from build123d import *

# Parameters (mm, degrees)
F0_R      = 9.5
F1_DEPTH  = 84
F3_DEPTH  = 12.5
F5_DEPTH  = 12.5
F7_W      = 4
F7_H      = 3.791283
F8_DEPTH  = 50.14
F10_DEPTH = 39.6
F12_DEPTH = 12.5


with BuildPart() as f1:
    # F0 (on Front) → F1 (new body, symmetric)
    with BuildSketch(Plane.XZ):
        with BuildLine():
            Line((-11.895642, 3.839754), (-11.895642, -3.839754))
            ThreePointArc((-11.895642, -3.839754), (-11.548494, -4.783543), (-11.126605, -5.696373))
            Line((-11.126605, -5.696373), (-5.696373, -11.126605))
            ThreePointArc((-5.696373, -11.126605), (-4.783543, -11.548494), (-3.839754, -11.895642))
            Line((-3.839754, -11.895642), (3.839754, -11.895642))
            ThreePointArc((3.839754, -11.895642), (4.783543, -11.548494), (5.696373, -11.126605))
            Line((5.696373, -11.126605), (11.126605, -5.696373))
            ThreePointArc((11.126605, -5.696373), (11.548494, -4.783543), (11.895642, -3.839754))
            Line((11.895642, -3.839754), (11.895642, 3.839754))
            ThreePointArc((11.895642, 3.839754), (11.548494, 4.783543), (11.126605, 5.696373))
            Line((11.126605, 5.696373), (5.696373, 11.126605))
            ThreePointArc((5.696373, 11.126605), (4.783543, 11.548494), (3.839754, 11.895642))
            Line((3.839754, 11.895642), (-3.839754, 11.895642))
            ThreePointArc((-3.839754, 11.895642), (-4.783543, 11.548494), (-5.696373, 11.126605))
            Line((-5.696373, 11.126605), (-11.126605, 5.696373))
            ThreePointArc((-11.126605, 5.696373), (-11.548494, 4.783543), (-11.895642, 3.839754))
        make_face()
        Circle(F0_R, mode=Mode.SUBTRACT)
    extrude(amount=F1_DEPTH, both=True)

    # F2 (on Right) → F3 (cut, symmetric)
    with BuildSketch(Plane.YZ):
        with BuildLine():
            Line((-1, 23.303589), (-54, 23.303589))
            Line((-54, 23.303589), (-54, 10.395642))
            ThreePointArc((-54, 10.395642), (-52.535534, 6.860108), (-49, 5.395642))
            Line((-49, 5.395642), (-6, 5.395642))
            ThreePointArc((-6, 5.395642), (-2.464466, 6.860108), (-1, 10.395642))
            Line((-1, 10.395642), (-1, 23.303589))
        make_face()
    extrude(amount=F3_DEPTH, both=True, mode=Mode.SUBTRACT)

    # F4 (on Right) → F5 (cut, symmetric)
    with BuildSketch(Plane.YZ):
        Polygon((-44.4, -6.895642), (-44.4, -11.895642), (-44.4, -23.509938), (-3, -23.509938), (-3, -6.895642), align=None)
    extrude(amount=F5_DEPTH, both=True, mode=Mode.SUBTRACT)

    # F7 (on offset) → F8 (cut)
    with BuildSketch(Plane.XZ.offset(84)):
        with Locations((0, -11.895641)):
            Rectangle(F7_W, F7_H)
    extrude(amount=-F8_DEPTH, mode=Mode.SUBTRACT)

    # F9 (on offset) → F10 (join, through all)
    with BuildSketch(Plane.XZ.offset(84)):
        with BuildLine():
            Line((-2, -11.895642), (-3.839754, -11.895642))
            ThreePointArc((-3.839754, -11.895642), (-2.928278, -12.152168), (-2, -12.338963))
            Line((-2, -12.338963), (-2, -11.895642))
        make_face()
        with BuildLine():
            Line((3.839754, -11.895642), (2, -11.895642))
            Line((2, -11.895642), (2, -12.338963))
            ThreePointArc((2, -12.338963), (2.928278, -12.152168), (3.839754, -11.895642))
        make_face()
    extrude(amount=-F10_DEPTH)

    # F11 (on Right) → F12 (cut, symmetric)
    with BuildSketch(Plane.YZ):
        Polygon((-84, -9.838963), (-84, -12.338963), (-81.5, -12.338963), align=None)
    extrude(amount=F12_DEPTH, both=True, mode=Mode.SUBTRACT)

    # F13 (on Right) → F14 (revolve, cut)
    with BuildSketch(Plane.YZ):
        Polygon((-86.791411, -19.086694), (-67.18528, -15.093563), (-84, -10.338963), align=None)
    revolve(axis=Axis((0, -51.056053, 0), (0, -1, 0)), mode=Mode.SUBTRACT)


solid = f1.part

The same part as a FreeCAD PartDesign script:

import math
import FreeCAD as App
import Part
import Sketcher

doc = App.newDocument("Part")
params = doc.addObject("Spreadsheet::Sheet", "Params")
for row, (alias, value) in enumerate([
    ("sketch1_diameter", "19 mm"),
    ("pad1_length", "168 mm"),
    ("sketch2_radius", "5 mm"),
    ("sketch2_width", "53 mm"),
    ("pocket1_length", "25 mm"),
    ("sketch3_width", "41.4 mm"),
    ("pocket2_length", "25 mm"),
    ("sketch4_width", "4 mm"),
    ("pocket3_length", "50.14 mm"),
    ("pad2_length", "39.6 mm"),
    ("sketch6_width", "2.5 mm"),
    ("pocket4_length", "25 mm"),
    ("groove_angle", "360 deg"),
], start=1):
    params.set(f"A{row}", alias)
    params.set(f"B{row}", "=" + value)
    params.setAlias(f"B{row}", alias)

body = doc.addObject("PartDesign::Body", "Body")

# Sketch on XZ plane
sketch1 = body.newObject("Sketcher::SketchObject", "Sketch")
sketch1.AttachmentSupport = (doc.getObject("XZ_Plane"), [""])
sketch1.MapMode = "FlatFace"
sketch1.addGeometry([
    Part.LineSegment(App.Vector(-11.895642, 3.839754, 0), App.Vector(-11.895642, -3.839754, 0)),  # 0
    Part.ArcOfCircle(Part.Circle(App.Vector(0.000108, 0.000046, 0), App.Vector(0, 0, 1), 12.500117), math.radians(-162.110566), math.radians(-152.889422)),  # 1
    Part.LineSegment(App.Vector(-11.126605, -5.696373, 0), App.Vector(-5.696373, -11.126605, 0)),  # 2
    Part.ArcOfCircle(Part.Circle(App.Vector(0.000046, 0.000108, 0), App.Vector(0, 0, 1), 12.500117), math.radians(-117.110578), math.radians(-107.889434)),  # 3
    Part.LineSegment(App.Vector(-3.839754, -11.895642, 0), App.Vector(3.839754, -11.895642, 0)),  # 4
    Part.ArcOfCircle(Part.Circle(App.Vector(-0.000046, 0.000108, 0), App.Vector(0, 0, 1), 12.500117), math.radians(-72.110566), math.radians(-62.889422)),  # 5
    Part.LineSegment(App.Vector(5.696373, -11.126605, 0), App.Vector(11.126605, -5.696373, 0)),  # 6
    Part.ArcOfCircle(Part.Circle(App.Vector(-0.000108, 0.000046, 0), App.Vector(0, 0, 1), 12.500117), math.radians(-27.110578), math.radians(-17.889434)),  # 7
    Part.LineSegment(App.Vector(11.895642, -3.839754, 0), App.Vector(11.895642, 3.839754, 0)),  # 8
    Part.ArcOfCircle(Part.Circle(App.Vector(-0.000108, -0.000046, 0), App.Vector(0, 0, 1), 12.500117), math.radians(17.889434), math.radians(27.110578)),  # 9
    Part.LineSegment(App.Vector(11.126605, 5.696373, 0), App.Vector(5.696373, 11.126605, 0)),  # 10
    Part.ArcOfCircle(Part.Circle(App.Vector(-0.000046, -0.000108, 0), App.Vector(0, 0, 1), 12.500117), math.radians(62.889422), math.radians(72.110566)),  # 11
    Part.LineSegment(App.Vector(3.839754, 11.895642, 0), App.Vector(-3.839754, 11.895642, 0)),  # 12
    Part.ArcOfCircle(Part.Circle(App.Vector(0.000046, -0.000108, 0), App.Vector(0, 0, 1), 12.500117), math.radians(107.889434), math.radians(117.110578)),  # 13
    Part.LineSegment(App.Vector(-5.696373, 11.126605, 0), App.Vector(-11.126605, 5.696373, 0)),  # 14
    Part.ArcOfCircle(Part.Circle(App.Vector(0.000108, -0.000046, 0), App.Vector(0, 0, 1), 12.500117), math.radians(152.889422), math.radians(162.110566)),  # 15
    Part.Circle(App.Vector(0, 0, 0), App.Vector(0, 0, 1), 9.5),  # 16
], False)
sketch1.addConstraint([
    Sketcher.Constraint("Coincident", 0, 2, 1, 1),
    Sketcher.Constraint("Coincident", 1, 2, 2, 1),
    Sketcher.Constraint("Coincident", 2, 2, 3, 1),
    Sketcher.Constraint("Coincident", 3, 2, 4, 1),
    Sketcher.Constraint("Coincident", 4, 2, 5, 1),
    Sketcher.Constraint("Coincident", 5, 2, 6, 1),
    Sketcher.Constraint("Coincident", 6, 2, 7, 1),
    Sketcher.Constraint("Coincident", 7, 2, 8, 1),
    Sketcher.Constraint("Coincident", 8, 2, 9, 1),
    Sketcher.Constraint("Coincident", 9, 2, 10, 1),
    Sketcher.Constraint("Coincident", 10, 2, 11, 1),
    Sketcher.Constraint("Coincident", 11, 2, 12, 1),
    Sketcher.Constraint("Coincident", 12, 2, 13, 1),
    Sketcher.Constraint("Coincident", 13, 2, 14, 1),
    Sketcher.Constraint("Coincident", 14, 2, 15, 1),
    Sketcher.Constraint("Coincident", 15, 2, 0, 1),
    Sketcher.Constraint("Vertical", 0),
    Sketcher.Constraint("Horizontal", 4),
    Sketcher.Constraint("Vertical", 8),
    Sketcher.Constraint("Horizontal", 12),
    Sketcher.Constraint("Coincident", 16, 3, -1, 1),
    Sketcher.Constraint("Equal", 1, 3),
    Sketcher.Constraint("Equal", 3, 5),
    Sketcher.Constraint("Equal", 5, 7),
    Sketcher.Constraint("Equal", 7, 9),
    Sketcher.Constraint("Equal", 9, 11),
    Sketcher.Constraint("Equal", 11, 13),
    Sketcher.Constraint("Equal", 13, 15),
    Sketcher.Constraint("Symmetric", 1, 3, 9, 3, -1, 1),
    Sketcher.Constraint("Symmetric", 3, 3, 11, 3, -1, 1),
    Sketcher.Constraint("Symmetric", 5, 3, 13, 3, -1, 1),
    Sketcher.Constraint("Symmetric", 7, 3, 15, 3, -1, 1),
    Sketcher.Constraint("Symmetric", 3, 3, 5, 3, -2),
    Sketcher.Constraint("Symmetric", 1, 3, 7, 3, -2),
    Sketcher.Constraint("Perpendicular", 2, 6),
    Sketcher.Constraint("Perpendicular", 6, 10),
    Sketcher.Constraint("Perpendicular", 10, 14),
    Sketcher.Constraint("Horizontal", 2, 2, 5, 2),
    Sketcher.Constraint("Horizontal", 1, 2, 6, 2),
    Sketcher.Constraint("Horizontal", 0, 2, 7, 2),
    Sketcher.Constraint("Horizontal", 10, 2, 13, 2),
    Sketcher.Constraint("Vertical", 6, 2, 9, 2),
    Sketcher.Constraint("Vertical", 4, 2, 11, 2),
    Sketcher.Constraint("Equal", 12, 0),
    Sketcher.Constraint("Diameter", 16, 19.0),
    Sketcher.Constraint("Radius", 1, 12.500117),
    Sketcher.Constraint("DistanceX", 4, 1, 4, 2, 7.679508),
    Sketcher.Constraint("DistanceY", 0, 2, 7, 3, 3.8398),
    Sketcher.Constraint("DistanceX", 3, 2, 13, 3, 3.8398),
    Sketcher.Constraint("DistanceY", 0, 2, 5, 3, 3.839862),
    Sketcher.Constraint("DistanceY", 1, 2, 0, 2, 1.856619),
    Sketcher.Constraint("DistanceX", 1, 2, 11, 3, 11.126559),
])
sketch1.setExpression("Constraints[44]", "Params.sketch1_diameter")
pad1 = body.newObject("PartDesign::Pad", "Pad")
pad1.Profile = sketch1
pad1.setExpression("Length", "Params.pad1_length")
pad1.Midplane = True

# Sketch on YZ plane
sketch2 = body.newObject("Sketcher::SketchObject", "Sketch001")
sketch2.AttachmentSupport = (doc.getObject("YZ_Plane"), [""])
sketch2.MapMode = "FlatFace"
sketch2.addGeometry([
    Part.LineSegment(App.Vector(-1, 23.303589, 0), App.Vector(-54, 23.303589, 0)),  # 0
    Part.LineSegment(App.Vector(-54, 23.303589, 0), App.Vector(-54, 10.395642, 0)),  # 1
    Part.ArcOfCircle(Part.Circle(App.Vector(-49, 10.395642, 0), App.Vector(0, 0, 1), 5), math.radians(179.999996), math.radians(270.000004)),  # 2
    Part.LineSegment(App.Vector(-49, 5.395642, 0), App.Vector(-6, 5.395642, 0)),  # 3
    Part.ArcOfCircle(Part.Circle(App.Vector(-6, 10.395642, 0), App.Vector(0, 0, 1), 5), math.radians(-90.000004), math.radians(0.000004)),  # 4
    Part.LineSegment(App.Vector(-1, 10.395642, 0), App.Vector(-1, 23.303589, 0)),  # 5
], False)
sketch2.addConstraint([
    Sketcher.Constraint("Coincident", 0, 2, 1, 1),
    Sketcher.Constraint("Tangent", 1, 2, 2, 1),
    Sketcher.Constraint("Tangent", 2, 2, 3, 1),
    Sketcher.Constraint("Tangent", 3, 2, 4, 1),
    Sketcher.Constraint("Tangent", 4, 2, 5, 1),
    Sketcher.Constraint("Coincident", 5, 2, 0, 1),
    Sketcher.Constraint("Horizontal", 0),
    Sketcher.Constraint("Vertical", 1),
    Sketcher.Constraint("Horizontal", 3),
    Sketcher.Constraint("Vertical", 5),
    Sketcher.Constraint("Equal", 2, 4),
    Sketcher.Constraint("Radius", 2, 5.0),
    Sketcher.Constraint("DistanceX", 0, 2, 0, 1, 53.0),
    Sketcher.Constraint("DistanceX", 2, 3, -1, 1, 49.0),
    Sketcher.Constraint("DistanceY", 1, 2, 1, 1, 12.907947),
    Sketcher.Constraint("DistanceY", -1, 1, 2, 3, 10.395642),
])
sketch2.setExpression("Constraints[11]", "Params.sketch2_radius")
sketch2.setExpression("Constraints[12]", "Params.sketch2_width")
pocket1 = body.newObject("PartDesign::Pocket", "Pocket")
pocket1.Profile = sketch2
pocket1.setExpression("Length", "Params.pocket1_length")
pocket1.Midplane = True

# Sketch on YZ plane
sketch3 = body.newObject("Sketcher::SketchObject", "Sketch002")
sketch3.AttachmentSupport = (doc.getObject("YZ_Plane"), [""])
sketch3.MapMode = "FlatFace"
sketch3.addGeometry([
    Part.LineSegment(App.Vector(-44.4, -6.895642, 0), App.Vector(-44.4, -23.509938, 0)),
    Part.LineSegment(App.Vector(-44.4, -23.509938, 0), App.Vector(-3, -23.509938, 0)),
    Part.LineSegment(App.Vector(-3, -23.509938, 0), App.Vector(-3, -6.895642, 0)),
    Part.LineSegment(App.Vector(-3, -6.895642, 0), App.Vector(-44.4, -6.895642, 0)),
], False)
sketch3.addConstraint([
    Sketcher.Constraint("Coincident", 0, 2, 1, 1),
    Sketcher.Constraint("Coincident", 1, 2, 2, 1),
    Sketcher.Constraint("Coincident", 2, 2, 3, 1),
    Sketcher.Constraint("Coincident", 3, 2, 0, 1),
    Sketcher.Constraint("Vertical", 0),
    Sketcher.Constraint("Horizontal", 1),
    Sketcher.Constraint("Vertical", 2),
    Sketcher.Constraint("Horizontal", 3),
    Sketcher.Constraint("DistanceX", 1, 1, 1, 2, 41.4),
    Sketcher.Constraint("DistanceX", 1, 2, -1, 1, 3.0),
    Sketcher.Constraint("DistanceY", 0, 2, 0, 1, 16.614296),
    Sketcher.Constraint("DistanceY", 2, 2, -1, 1, 6.895642),
])
sketch3.setExpression("Constraints[8]", "Params.sketch3_width")
pocket2 = body.newObject("PartDesign::Pocket", "Pocket001")
pocket2.Profile = sketch3
pocket2.setExpression("Length", "Params.pocket2_length")
pocket2.Midplane = True

# Sketch on XZ plane
sketch4 = body.newObject("Sketcher::SketchObject", "Sketch003")
sketch4.AttachmentSupport = (doc.getObject("XZ_Plane"), [""])
sketch4.MapMode = "FlatFace"
sketch4.AttachmentOffset = App.Placement(App.Vector(0, 0, 84), App.Rotation())
sketch4.addGeometry([
    Part.LineSegment(App.Vector(-2, -9.999999, 0), App.Vector(-2, -13.791282, 0)),
    Part.LineSegment(App.Vector(-2, -13.791282, 0), App.Vector(2, -13.791282, 0)),
    Part.LineSegment(App.Vector(2, -13.791282, 0), App.Vector(2, -9.999999, 0)),
    Part.LineSegment(App.Vector(2, -9.999999, 0), App.Vector(-2, -9.999999, 0)),
], False)
sketch4.addConstraint([
    Sketcher.Constraint("Coincident", 0, 2, 1, 1),
    Sketcher.Constraint("Coincident", 1, 2, 2, 1),
    Sketcher.Constraint("Coincident", 2, 2, 3, 1),
    Sketcher.Constraint("Coincident", 3, 2, 0, 1),
    Sketcher.Constraint("Vertical", 0),
    Sketcher.Constraint("Horizontal", 1),
    Sketcher.Constraint("Vertical", 2),
    Sketcher.Constraint("Horizontal", 3),
    Sketcher.Constraint("DistanceX", 1, 1, 1, 2, 4.0),
    Sketcher.Constraint("DistanceX", 0, 2, -1, 1, 2.0),
    Sketcher.Constraint("DistanceY", 2, 2, -1, 1, 9.999999),
    Sketcher.Constraint("DistanceY", 0, 2, 0, 1, 3.791283),
])
sketch4.setExpression("Constraints[8]", "Params.sketch4_width")
pocket3 = body.newObject("PartDesign::Pocket", "Pocket002")
pocket3.Profile = sketch4
pocket3.setExpression("Length", "Params.pocket3_length")

# Sketch on XZ plane
sketch5 = body.newObject("Sketcher::SketchObject", "Sketch004")
sketch5.AttachmentSupport = (doc.getObject("XZ_Plane"), [""])
sketch5.MapMode = "FlatFace"
sketch5.AttachmentOffset = App.Placement(App.Vector(0, 0, 84), App.Rotation())
sketch5.addGeometry([
    Part.LineSegment(App.Vector(-2, -11.895642, 0), App.Vector(-3.839754, -11.895642, 0)),  # 0
    Part.ArcOfCircle(Part.Circle(App.Vector(0.000031, 0.000129, 0), App.Vector(0, 0, 1), 12.500132), math.radians(-107.889337), math.radians(-99.20694)),  # 1
    Part.LineSegment(App.Vector(-2, -12.338963, 0), App.Vector(-2, -11.895642, 0)),  # 2
    Part.LineSegment(App.Vector(3.839754, -11.895642, 0), App.Vector(2, -11.895642, 0)),  # 3
    Part.LineSegment(App.Vector(2, -11.895642, 0), App.Vector(2, -12.338963, 0)),  # 4
    Part.ArcOfCircle(Part.Circle(App.Vector(-0.000031, 0.000129, 0), App.Vector(0, 0, 1), 12.500132), math.radians(-80.79306), math.radians(-72.110663)),  # 5
], False)
sketch5.addConstraint([
    Sketcher.Constraint("Coincident", 0, 2, 1, 1),
    Sketcher.Constraint("Coincident", 1, 2, 2, 1),
    Sketcher.Constraint("Coincident", 2, 2, 0, 1),
    Sketcher.Constraint("Coincident", 3, 2, 4, 1),
    Sketcher.Constraint("Coincident", 4, 2, 5, 1),
    Sketcher.Constraint("Coincident", 5, 2, 3, 1),
    Sketcher.Constraint("Horizontal", 0),
    Sketcher.Constraint("Vertical", 2),
    Sketcher.Constraint("Horizontal", 3),
    Sketcher.Constraint("Vertical", 4),
    Sketcher.Constraint("Equal", 1, 5),
    Sketcher.Constraint("Symmetric", 1, 3, 5, 3, -2),
    Sketcher.Constraint("Symmetric", 2, 2, 3, 2, -2),
    Sketcher.Constraint("DistanceX", 1, 2, -1, 1, 2.0),
    Sketcher.Constraint("Radius", 1, 12.500132),
    Sketcher.Constraint("DistanceY", 2, 1, 2, 2, 0.443321),
    Sketcher.Constraint("DistanceX", 0, 2, 0, 1, 1.839754),
    Sketcher.Constraint("DistanceY", -1, 1, 1, 3, 0.000129),
])
pad2 = body.newObject("PartDesign::Pad", "Pad001")
pad2.Profile = sketch5
pad2.setExpression("Length", "Params.pad2_length")
pad2.Reversed = True

# Sketch on YZ plane
sketch6 = body.newObject("Sketcher::SketchObject", "Sketch005")
sketch6.AttachmentSupport = (doc.getObject("YZ_Plane"), [""])
sketch6.MapMode = "FlatFace"
sketch6.addGeometry([
    Part.LineSegment(App.Vector(-84, -9.838963, 0), App.Vector(-84, -12.338963, 0)),
    Part.LineSegment(App.Vector(-84, -12.338963, 0), App.Vector(-81.5, -12.338963, 0)),
    Part.LineSegment(App.Vector(-81.5, -12.338963, 0), App.Vector(-84, -9.838963, 0)),
], False)
sketch6.addConstraint([
    Sketcher.Constraint("Coincident", 0, 2, 1, 1),
    Sketcher.Constraint("Coincident", 1, 2, 2, 1),
    Sketcher.Constraint("Coincident", 2, 2, 0, 1),
    Sketcher.Constraint("Vertical", 0),
    Sketcher.Constraint("Horizontal", 1),
    Sketcher.Constraint("Equal", 1, 0),
    Sketcher.Constraint("DistanceX", 1, 1, 1, 2, 2.5),
    Sketcher.Constraint("DistanceX", 0, 2, -1, 1, 84.0),
    Sketcher.Constraint("DistanceY", 0, 2, -1, 1, 12.338963),
])
sketch6.setExpression("Constraints[6]", "Params.sketch6_width")
pocket4 = body.newObject("PartDesign::Pocket", "Pocket003")
pocket4.Profile = sketch6
pocket4.setExpression("Length", "Params.pocket4_length")
pocket4.Midplane = True

# Sketch on YZ plane
sketch7 = body.newObject("Sketcher::SketchObject", "Sketch006")
sketch7.AttachmentSupport = (doc.getObject("YZ_Plane"), [""])
sketch7.MapMode = "FlatFace"
sketch7.addGeometry([
    Part.LineSegment(App.Vector(-86.791411, -19.086694, 0), App.Vector(-67.18528, -15.093563, 0)),
    Part.LineSegment(App.Vector(-67.18528, -15.093563, 0), App.Vector(-84, -10.338963, 0)),
    Part.LineSegment(App.Vector(-84, -10.338963, 0), App.Vector(-86.791411, -19.086694, 0)),
], False)
sketch7.addConstraint([
    Sketcher.Constraint("Coincident", 0, 2, 1, 1),
    Sketcher.Constraint("Coincident", 1, 2, 2, 1),
    Sketcher.Constraint("Coincident", 2, 2, 0, 1),
    Sketcher.Constraint("DistanceX", 1, 2, -1, 1, 84.0),
    Sketcher.Constraint("DistanceY", 0, 2, 1, 2, 4.7546),
    Sketcher.Constraint("Distance", 1, 17.47401),
    Sketcher.Constraint("DistanceX", 2, 2, -1, 1, 86.791411),
    Sketcher.Constraint("DistanceY", 2, 2, 1, 2, 8.747731),
    Sketcher.Constraint("DistanceY", 0, 2, -1, 1, 15.093563),
])
groove = body.newObject("PartDesign::Groove", "Groove")
groove.Profile = sketch7
groove.ReferenceAxis = (sketch7, ["H_Axis"])
groove.setExpression("Angle", "Params.groove_angle")

doc.recompute()
